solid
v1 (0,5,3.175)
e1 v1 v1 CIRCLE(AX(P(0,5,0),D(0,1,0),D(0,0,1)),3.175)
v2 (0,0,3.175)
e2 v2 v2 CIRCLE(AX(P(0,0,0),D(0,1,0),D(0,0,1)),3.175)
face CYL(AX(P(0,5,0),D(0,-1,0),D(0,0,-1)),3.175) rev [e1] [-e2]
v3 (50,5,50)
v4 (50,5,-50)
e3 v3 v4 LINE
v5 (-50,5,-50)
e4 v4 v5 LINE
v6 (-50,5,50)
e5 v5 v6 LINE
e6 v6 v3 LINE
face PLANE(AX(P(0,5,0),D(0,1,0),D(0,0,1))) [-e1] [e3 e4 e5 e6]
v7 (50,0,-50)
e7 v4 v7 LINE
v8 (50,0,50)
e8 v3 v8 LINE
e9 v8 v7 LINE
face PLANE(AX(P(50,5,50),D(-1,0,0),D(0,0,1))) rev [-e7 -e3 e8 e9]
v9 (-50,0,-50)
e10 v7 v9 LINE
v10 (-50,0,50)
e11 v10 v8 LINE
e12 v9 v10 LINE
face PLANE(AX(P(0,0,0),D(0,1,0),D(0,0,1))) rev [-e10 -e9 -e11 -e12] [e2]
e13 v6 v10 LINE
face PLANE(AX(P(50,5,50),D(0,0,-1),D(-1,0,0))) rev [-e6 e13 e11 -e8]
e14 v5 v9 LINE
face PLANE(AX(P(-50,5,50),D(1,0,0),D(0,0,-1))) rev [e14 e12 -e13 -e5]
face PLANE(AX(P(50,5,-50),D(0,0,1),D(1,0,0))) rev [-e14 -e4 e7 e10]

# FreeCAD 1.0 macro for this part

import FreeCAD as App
import Part
import Sketcher
from FreeCAD import Vector

doc = App.newDocument("Part")
body = doc.addObject("PartDesign::Body", "Body")

# Sketch on XZ plane
sketch1 = doc.addObject("Sketcher::SketchObject", "Sketch")
body.addObject(sketch1)
sketch1.AttachmentSupport = (doc.XZ_Plane, [""])
sketch1.MapMode = "FlatFace"
sketch1.addGeometry(Part.LineSegment(Vector(-50, -50, 0), Vector(-50, 50, 0)), False)
sketch1.addGeometry(Part.LineSegment(Vector(-50, 50, 0), Vector(50, 50, 0)), False)
sketch1.addGeometry(Part.LineSegment(Vector(50, 50, 0), Vector(50, -50, 0)), False)
sketch1.addGeometry(Part.LineSegment(Vector(50, -50, 0), Vector(-50, -50, 0)), False)
sketch1.addGeometry(Part.Circle(Vector(0, 0, 0), Vector(0, 0, 1), 3.2), False)
sketch1.addConstraint(Sketcher.Constraint("Coincident", 0, 2, 1, 1))
sketch1.addConstraint(Sketcher.Constraint("Coincident", 1, 2, 2, 1))
sketch1.addConstraint(Sketcher.Constraint("Coincident", 2, 2, 3, 1))
sketch1.addConstraint(Sketcher.Constraint("Coincident", 3, 2, 0, 1))
sketch1.addConstraint(Sketcher.Constraint("Vertical", 0))
sketch1.addConstraint(Sketcher.Constraint("Horizontal", 1))
sketch1.addConstraint(Sketcher.Constraint("Vertical", 2))
sketch1.addConstraint(Sketcher.Constraint("Horizontal", 3))
sketch1.addConstraint(Sketcher.Constraint("Coincident", 4, 3, -1, 1))
sketch1.addConstraint(Sketcher.Constraint("Symmetric", 0, 2, 2, 2, -1, 1))
sketch1.addConstraint(Sketcher.Constraint("Equal", 3, 0))
sketch1.addConstraint(Sketcher.Constraint("Diameter", 4, 6.35))
sketch1.addConstraint(Sketcher.Constraint("DistanceX", 1, 1, 1, 2, 100.0))
pad1 = doc.addObject("PartDesign::Pad", "Pad")
body.addObject(pad1)
pad1.Profile = sketch1
pad1.Length = 5
pad1.Reversed = True

doc.recompute()
